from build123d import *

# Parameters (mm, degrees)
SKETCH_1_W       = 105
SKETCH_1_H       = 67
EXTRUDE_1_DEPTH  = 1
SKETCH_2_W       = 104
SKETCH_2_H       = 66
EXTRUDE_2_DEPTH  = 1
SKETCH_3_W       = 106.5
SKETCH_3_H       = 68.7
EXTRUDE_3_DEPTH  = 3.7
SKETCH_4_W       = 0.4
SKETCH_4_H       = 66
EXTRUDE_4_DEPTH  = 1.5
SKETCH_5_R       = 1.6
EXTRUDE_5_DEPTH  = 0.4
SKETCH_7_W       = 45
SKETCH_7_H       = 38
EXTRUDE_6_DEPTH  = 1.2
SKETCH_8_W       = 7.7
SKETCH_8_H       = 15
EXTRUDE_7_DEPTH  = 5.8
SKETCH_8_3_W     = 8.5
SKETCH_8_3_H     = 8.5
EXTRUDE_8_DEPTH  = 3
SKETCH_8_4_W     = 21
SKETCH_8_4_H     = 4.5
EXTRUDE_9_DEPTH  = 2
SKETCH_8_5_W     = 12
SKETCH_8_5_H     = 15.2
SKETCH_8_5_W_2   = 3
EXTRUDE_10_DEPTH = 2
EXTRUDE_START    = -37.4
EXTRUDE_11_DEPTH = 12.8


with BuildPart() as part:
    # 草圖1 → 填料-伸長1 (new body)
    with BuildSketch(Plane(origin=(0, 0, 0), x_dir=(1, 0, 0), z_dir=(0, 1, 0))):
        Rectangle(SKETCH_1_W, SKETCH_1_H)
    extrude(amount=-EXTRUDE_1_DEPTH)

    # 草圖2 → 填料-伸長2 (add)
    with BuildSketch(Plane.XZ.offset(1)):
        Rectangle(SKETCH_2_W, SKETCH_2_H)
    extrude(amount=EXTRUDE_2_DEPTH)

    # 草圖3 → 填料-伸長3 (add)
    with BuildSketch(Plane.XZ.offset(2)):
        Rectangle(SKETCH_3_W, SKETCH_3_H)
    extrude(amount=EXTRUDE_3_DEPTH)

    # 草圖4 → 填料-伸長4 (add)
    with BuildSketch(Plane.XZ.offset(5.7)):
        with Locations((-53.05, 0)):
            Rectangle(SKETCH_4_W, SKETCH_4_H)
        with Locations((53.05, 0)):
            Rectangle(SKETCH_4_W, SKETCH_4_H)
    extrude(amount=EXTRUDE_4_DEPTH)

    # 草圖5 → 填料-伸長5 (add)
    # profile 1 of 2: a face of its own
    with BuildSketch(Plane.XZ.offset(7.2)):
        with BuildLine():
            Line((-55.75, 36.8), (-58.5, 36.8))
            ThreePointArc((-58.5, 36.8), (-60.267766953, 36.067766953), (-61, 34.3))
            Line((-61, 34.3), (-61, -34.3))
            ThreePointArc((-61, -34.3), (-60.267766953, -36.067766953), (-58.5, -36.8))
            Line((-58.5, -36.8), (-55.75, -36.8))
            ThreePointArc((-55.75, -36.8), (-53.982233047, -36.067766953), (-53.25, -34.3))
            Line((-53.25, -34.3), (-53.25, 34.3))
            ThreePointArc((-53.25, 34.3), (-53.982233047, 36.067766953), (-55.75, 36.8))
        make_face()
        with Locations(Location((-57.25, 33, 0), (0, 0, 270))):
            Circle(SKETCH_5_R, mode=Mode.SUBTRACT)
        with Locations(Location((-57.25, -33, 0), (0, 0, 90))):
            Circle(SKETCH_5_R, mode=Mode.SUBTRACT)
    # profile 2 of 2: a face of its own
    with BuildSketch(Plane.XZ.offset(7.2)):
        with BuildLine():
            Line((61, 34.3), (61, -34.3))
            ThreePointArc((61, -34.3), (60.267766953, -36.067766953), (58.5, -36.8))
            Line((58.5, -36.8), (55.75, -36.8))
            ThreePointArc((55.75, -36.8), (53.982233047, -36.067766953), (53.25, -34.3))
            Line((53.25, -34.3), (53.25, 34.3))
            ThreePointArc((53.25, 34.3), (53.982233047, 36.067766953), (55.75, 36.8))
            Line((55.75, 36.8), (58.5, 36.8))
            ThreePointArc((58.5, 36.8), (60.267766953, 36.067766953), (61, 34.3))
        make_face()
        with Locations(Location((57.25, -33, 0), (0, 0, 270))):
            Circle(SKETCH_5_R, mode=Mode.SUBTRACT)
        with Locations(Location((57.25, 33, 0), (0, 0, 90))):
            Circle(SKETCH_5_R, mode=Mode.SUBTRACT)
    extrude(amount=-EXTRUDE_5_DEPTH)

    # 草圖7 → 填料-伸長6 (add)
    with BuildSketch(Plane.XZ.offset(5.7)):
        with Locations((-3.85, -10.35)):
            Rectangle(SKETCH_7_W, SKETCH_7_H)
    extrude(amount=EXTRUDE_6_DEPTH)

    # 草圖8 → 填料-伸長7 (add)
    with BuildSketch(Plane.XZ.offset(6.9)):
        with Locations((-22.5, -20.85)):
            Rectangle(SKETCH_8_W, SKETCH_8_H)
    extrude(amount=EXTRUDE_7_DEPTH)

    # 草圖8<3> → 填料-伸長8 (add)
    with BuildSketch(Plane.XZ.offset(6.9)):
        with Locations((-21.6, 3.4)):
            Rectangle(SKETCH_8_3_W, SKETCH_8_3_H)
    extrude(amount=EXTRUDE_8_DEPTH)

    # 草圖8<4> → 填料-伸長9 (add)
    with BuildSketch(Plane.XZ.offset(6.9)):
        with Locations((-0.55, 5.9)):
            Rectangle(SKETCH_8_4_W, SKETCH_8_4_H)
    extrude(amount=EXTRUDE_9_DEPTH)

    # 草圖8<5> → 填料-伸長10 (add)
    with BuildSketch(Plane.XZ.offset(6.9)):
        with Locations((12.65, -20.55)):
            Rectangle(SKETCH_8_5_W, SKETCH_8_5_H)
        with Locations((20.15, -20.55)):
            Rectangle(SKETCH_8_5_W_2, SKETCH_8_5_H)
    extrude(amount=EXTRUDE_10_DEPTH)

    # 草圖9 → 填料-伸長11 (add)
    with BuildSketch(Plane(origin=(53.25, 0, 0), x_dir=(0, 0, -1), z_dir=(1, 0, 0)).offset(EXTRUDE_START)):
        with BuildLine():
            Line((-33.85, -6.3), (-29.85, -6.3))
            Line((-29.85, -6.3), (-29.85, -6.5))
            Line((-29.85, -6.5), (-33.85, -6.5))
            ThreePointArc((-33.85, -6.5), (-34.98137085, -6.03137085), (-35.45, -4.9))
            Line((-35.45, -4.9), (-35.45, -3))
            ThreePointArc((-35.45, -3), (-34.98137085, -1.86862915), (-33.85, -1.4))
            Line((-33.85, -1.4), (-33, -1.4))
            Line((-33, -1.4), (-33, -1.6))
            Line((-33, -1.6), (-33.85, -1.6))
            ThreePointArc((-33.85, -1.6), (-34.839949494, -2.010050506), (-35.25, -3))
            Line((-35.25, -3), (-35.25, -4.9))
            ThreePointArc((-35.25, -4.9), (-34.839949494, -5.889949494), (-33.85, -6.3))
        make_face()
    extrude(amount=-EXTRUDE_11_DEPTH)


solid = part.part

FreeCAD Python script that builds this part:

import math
import FreeCAD as App
import Part
import Sketcher
from FreeCAD import Vector
Q = App.Units.Quantity


def add_polygon(sketch, points):
    """Adds a closed chain of lines whose ends are joined by coincident constraints."""
    first, n = sketch.GeometryCount, len(points)
    for a, b in zip(points, points[1:] + points[:1]):
        sketch.addGeometry(Part.LineSegment(App.Vector(*a, 0), App.Vector(*b, 0)), False)
    for i in range(n):
        sketch.addConstraint(Sketcher.Constraint("Coincident", first + i, 2, first + (i + 1) % n, 1))

doc = App.newDocument("Part")
body = doc.addObject("PartDesign::Body", "Body")

# Sketch on XZ plane
sketch1 = body.newObject("Sketcher::SketchObject", "Sketch")
sketch1.AttachmentSupport = (doc.getObject("XZ_Plane"), [""])
sketch1.MapMode = "FlatFace"
add_polygon(sketch1, [(-52.5, -33.5), (-52.5, 33.5), (52.5, 33.5), (52.5, -33.5)])  # lines 0-3
sketch1.addConstraint(Sketcher.Constraint("Vertical", 0))
sketch1.addConstraint(Sketcher.Constraint("Horizontal", 1))
sketch1.addConstraint(Sketcher.Constraint("Vertical", 2))
sketch1.addConstraint(Sketcher.Constraint("Horizontal", 3))
sketch1.addConstraint(Sketcher.Constraint("Symmetric", 0, 2, 2, 2, -1, 1))
sketch1.addConstraint(Sketcher.Constraint("DistanceX", 1, 1, 1, 2, Q("105 mm")))
sketch1.addConstraint(Sketcher.Constraint("DistanceY", 0, 1, 0, 2, Q("67 mm")))
pad1 = body.newObject("PartDesign::Pad", "Pad")
pad1.Profile = sketch1
pad1.Length = 1

# Sketch on XZ plane
sketch2 = body.newObject("Sketcher::SketchObject", "Sketch001")
sketch2.AttachmentSupport = (doc.getObject("XZ_Plane"), [""])
sketch2.MapMode = "FlatFace"
sketch2.AttachmentOffset = App.Placement(Vector(0, 0, 1), App.Rotation())
add_polygon(sketch2, [(-52, 33), (-52, -33), (52, -33), (52, 33)])  # lines 0-3
sketch2.addConstraint(Sketcher.Constraint("Vertical", 0))
sketch2.addConstraint(Sketcher.Constraint("Horizontal", 1))
sketch2.addConstraint(Sketcher.Constraint("Vertical", 2))
sketch2.addConstraint(Sketcher.Constraint("Horizontal", 3))
sketch2.addConstraint(Sketcher.Constraint("Symmetric", 0, 2, 2, 2, -1, 1))
sketch2.addConstraint(Sketcher.Constraint("DistanceX", 1, 1, 1, 2, Q("104 mm")))
sketch2.addConstraint(Sketcher.Constraint("DistanceY", 0, 2, 0, 1, Q("66 mm")))
pad2 = body.newObject("PartDesign::Pad", "Pad001")
pad2.Profile = sketch2
pad2.Length = 1

# Sketch on XZ plane
sketch3 = body.newObject("Sketcher::SketchObject", "Sketch002")
sketch3.AttachmentSupport = (doc.getObject("XZ_Plane"), [""])
sketch3.MapMode = "FlatFace"
sketch3.AttachmentOffset = App.Placement(Vector(0, 0, 2), App.Rotation())
add_polygon(sketch3, [(-53.25, 34.35), (-53.25, -34.35), (53.25, -34.35), (53.25, 34.35)])  # lines 0-3
sketch3.addConstraint(Sketcher.Constraint("Vertical", 0))
sketch3.addConstraint(Sketcher.Constraint("Horizontal", 1))
sketch3.addConstraint(Sketcher.Constraint("Vertical", 2))
sketch3.addConstraint(Sketcher.Constraint("Horizontal", 3))
sketch3.addConstraint(Sketcher.Constraint("Symmetric", 0, 2, 2, 2, -1, 1))
sketch3.addConstraint(Sketcher.Constraint("DistanceX", 1, 1, 1, 2, Q("106.5 mm")))
sketch3.addConstraint(Sketcher.Constraint("DistanceY", 0, 2, 0, 1, Q("68.7 mm")))
pad3 = body.newObject("PartDesign::Pad", "Pad002")
pad3.Profile = sketch3
pad3.Length = 3.7

# Sketch on XZ plane
sketch4 = body.newObject("Sketcher::SketchObject", "Sketch003")
sketch4.AttachmentSupport = (doc.getObject("XZ_Plane"), [""])
sketch4.MapMode = "FlatFace"
sketch4.AttachmentOffset = App.Placement(Vector(0, 0, 5.7), App.Rotation())
add_polygon(sketch4, [(-53.25, 33), (-53.25, -33), (-52.85, -33), (-52.85, 33)])  # lines 0-3
add_polygon(sketch4, [(52.85, 33), (52.85, -33), (53.25, -33), (53.25, 33)])  # lines 4-7
sketch4.addConstraint(Sketcher.Constraint("Vertical", 0))
sketch4.addConstraint(Sketcher.Constraint("Horizontal", 1))
sketch4.addConstraint(Sketcher.Constraint("Vertical", 2))
sketch4.addConstraint(Sketcher.Constraint("Horizontal", 3))
sketch4.addConstraint(Sketcher.Constraint("Vertical", 4))
sketch4.addConstraint(Sketcher.Constraint("Horizontal", 5))
sketch4.addConstraint(Sketcher.Constraint("Vertical", 6))
sketch4.addConstraint(Sketcher.Constraint("Horizontal", 7))
sketch4.addConstraint(Sketcher.Constraint("Symmetric", 2, 2, 4, 2, -1, 1))
sketch4.addConstraint(Sketcher.Constraint("Symmetric", 0, 2, 6, 2, -1, 1))
sketch4.addConstraint(Sketcher.Constraint("Horizontal", 1, 2, 4, 2))
sketch4.addConstraint(Sketcher.Constraint("DistanceY", 0, 2, 0, 1, Q("66 mm")))
sketch4.addConstraint(Sketcher.Constraint("DistanceX", 1, 1, 1, 2, Q("0.4 mm")))
sketch4.addConstraint(Sketcher.Constraint("DistanceX", 1, 2, 4, 2, Q("105.7 mm")))
pad4 = body.newObject("PartDesign::Pad", "Pad003")
pad4.Profile = sketch4
pad4.Length = 1.5

# Sketch on XZ plane
sketch5 = body.newObject("Sketcher::SketchObject", "Sketch004")
sketch5.AttachmentSupport = (doc.getObject("XZ_Plane"), [""])
sketch5.MapMode = "FlatFace"
sketch5.AttachmentOffset = App.Placement(Vector(0, 0, 7.2), App.Rotation())
sketch5.addGeometry(Part.LineSegment(Vector(-55.75, 36.8, 0), Vector(-58.5, 36.8, 0)), False)
sketch5.addGeometry(Part.ArcOfCircle(Part.Circle(Vector(-58.5, 34.3, 0), Vector(0, 0, 1), 2.5), math.radians(90), math.radians(180)), False)
sketch5.addGeometry(Part.LineSegment(Vector(-61, 34.3, 0), Vector(-61, -34.3, 0)), False)
sketch5.addGeometry(Part.ArcOfCircle(Part.Circle(Vector(-58.5, -34.3, 0), Vector(0, 0, 1), 2.5), math.radians(180), math.radians(270)), False)
sketch5.addGeometry(Part.LineSegment(Vector(-58.5, -36.8, 0), Vector(-55.75, -36.8, 0)), False)
sketch5.addGeometry(Part.ArcOfCircle(Part.Circle(Vector(-55.75, -34.3, 0), Vector(0, 0, 1), 2.5), math.radians(-90), math.radians(0)), False)
sketch5.addGeometry(Part.LineSegment(Vector(-53.25, -34.3, 0), Vector(-53.25, 34.3, 0)), False)
sketch5.addGeometry(Part.ArcOfCircle(Part.Circle(Vector(-55.75, 34.3, 0), Vector(0, 0, 1), 2.5), math.radians(0), math.radians(90)), False)
sketch5.addGeometry(Part.Circle(Vector(-57.25, -33, 0), Vector(0, 0, 1), 1.6), False)
sketch5.addGeometry(Part.Circle(Vector(-57.25, 33, 0), Vector(0, 0, 1), 1.6), False)
sketch5.addGeometry(Part.LineSegment(Vector(61, -34.3, 0), Vector(61, 34.3, 0)), False)
sketch5.addGeometry(Part.ArcOfCircle(Part.Circle(Vector(58.5, 34.3, 0), Vector(0, 0, 1), 2.5), math.radians(0), math.radians(90)), False)
sketch5.addGeometry(Part.LineSegment(Vector(58.5, 36.8, 0), Vector(55.75, 36.8, 0)), False)
sketch5.addGeometry(Part.ArcOfCircle(Part.Circle(Vector(55.75, 34.3, 0), Vector(0, 0, 1), 2.5), math.radians(90), math.radians(180)), False)
sketch5.addGeometry(Part.LineSegment(Vector(53.25, 34.3, 0), Vector(53.25, -34.3, 0)), False)
sketch5.addGeometry(Part.ArcOfCircle(Part.Circle(Vector(55.75, -34.3, 0), Vector(0, 0, 1), 2.5), math.radians(180), math.radians(270)), False)
sketch5.addGeometry(Part.LineSegment(Vector(55.75, -36.8, 0), Vector(58.5, -36.8, 0)), False)
sketch5.addGeometry(Part.ArcOfCircle(Part.Circle(Vector(58.5, -34.3, 0), Vector(0, 0, 1), 2.5), math.radians(-90), math.radians(0)), False)
sketch5.addGeometry(Part.Circle(Vector(57.25, -33, 0), Vector(0, 0, 1), 1.6), False)
sketch5.addGeometry(Part.Circle(Vector(57.25, 33, 0), Vector(0, 0, 1), 1.6), False)
sketch5.addConstraint(Sketcher.Constraint("Tangent", 0, 2, 1, 1))
sketch5.addConstraint(Sketcher.Constraint("Tangent", 1, 2, 2, 1))
sketch5.addConstraint(Sketcher.Constraint("Tangent", 2, 2, 3, 1))
sketch5.addConstraint(Sketcher.Constraint("Tangent", 3, 2, 4, 1))
sketch5.addConstraint(Sketcher.Constraint("Tangent", 4, 2, 5, 1))
sketch5.addConstraint(Sketcher.Constraint("Tangent", 5, 2, 6, 1))
sketch5.addConstraint(Sketcher.Constraint("Tangent", 6, 2, 7, 1))
sketch5.addConstraint(Sketcher.Constraint("Tangent", 7, 2, 0, 1))
sketch5.addConstraint(Sketcher.Constraint("Tangent", 10, 2, 11, 1))
sketch5.addConstraint(Sketcher.Constraint("Tangent", 11, 2, 12, 1))
sketch5.addConstraint(Sketcher.Constraint("Tangent", 12, 2, 13, 1))
sketch5.addConstraint(Sketcher.Constraint("Tangent", 13, 2, 14, 1))
sketch5.addConstraint(Sketcher.Constraint("Tangent", 14, 2, 15, 1))
sketch5.addConstraint(Sketcher.Constraint("Tangent", 15, 2, 16, 1))
sketch5.addConstraint(Sketcher.Constraint("Tangent", 16, 2, 17, 1))
sketch5.addConstraint(Sketcher.Constraint("Tangent", 17, 2, 10, 1))
sketch5.addConstraint(Sketcher.Constraint("Horizontal", 0))
sketch5.addConstraint(Sketcher.Constraint("Vertical", 2))
sketch5.addConstraint(Sketcher.Constraint("Horizontal", 4))
sketch5.addConstraint(Sketcher.Constraint("Vertical", 6))
sketch5.addConstraint(Sketcher.Constraint("Vertical", 10))
sketch5.addConstraint(Sketcher.Constraint("Horizontal", 12))
sketch5.addConstraint(Sketcher.Constraint("Vertical", 14))
sketch5.addConstraint(Sketcher.Constraint("Horizontal", 16))
sketch5.addConstraint(Sketcher.Constraint("Equal", 1, 3))
sketch5.addConstraint(Sketcher.Constraint("Equal", 3, 5))
sketch5.addConstraint(Sketcher.Constraint("Equal", 5, 7))
sketch5.addConstraint(Sketcher.Constraint("Equal", 8, 9))
sketch5.addConstraint(Sketcher.Constraint("Equal", 7, 11))
sketch5.addConstraint(Sketcher.Constraint("Equal", 11, 13))
sketch5.addConstraint(Sketcher.Constraint("Equal", 13, 15))
sketch5.addConstraint(Sketcher.Constraint("Equal", 15, 17))
sketch5.addConstraint(Sketcher.Constraint("Equal", 9, 18))
sketch5.addConstraint(Sketcher.Constraint("Equal", 18, 19))
sketch5.addConstraint(Sketcher.Constraint("Symmetric", 3, 3, 11, 3, -1, 1))
sketch5.addConstraint(Sketcher.Constraint("Symmetric", 7, 3, 15, 3, -1, 1))
sketch5.addConstraint(Sketcher.Constraint("Symmetric", 9, 3, 18, 3, -1, 1))
sketch5.addConstraint(Sketcher.Constraint("Symmetric", 8, 3, 19, 3, -1, 1))
sketch5.addConstraint(Sketcher.Constraint("Symmetric", 8, 3, 18, 3, -2))
sketch5.addConstraint(Sketcher.Constraint("Horizontal", 7, 3, 11, 3))
sketch5.addConstraint(Sketcher.Constraint("Diameter", 8, Q("3.2 mm")))
sketch5.addConstraint(Sketcher.Constraint("Radius", 1, Q("2.5 mm")))
sketch5.addConstraint(Sketcher.Constraint("DistanceY", 2, 2, 2, 1, Q("68.6 mm")))
sketch5.addConstraint(Sketcher.Constraint("DistanceY", 8, 3, -1, 1, Q("33 mm")))
sketch5.addConstraint(Sketcher.Constraint("DistanceX", 1, 2, -1, 1, Q("61 mm")))
sketch5.addConstraint(Sketcher.Constraint("DistanceX", 9, 3, 13, 3, Q("113 mm")))
sketch5.addConstraint(Sketcher.Constraint("DistanceX", 8, 3, 5, 2, Q("4 mm")))
pad5 = body.newObject("PartDesign::Pad", "Pad004")
pad5.Profile = sketch5
pad5.Length = 0.4
pad5.Reversed = True

# Sketch on XZ plane
sketch6 = body.newObject("Sketcher::SketchObject", "Sketch005")
sketch6.AttachmentSupport = (doc.getObject("XZ_Plane"), [""])
sketch6.MapMode = "FlatFace"
sketch6.AttachmentOffset = App.Placement(Vector(0, 0, 5.7), App.Rotation())
add_polygon(sketch6, [(-26.35, 8.65), (-26.35, -29.35), (18.65, -29.35), (18.65, 8.65)])  # lines 0-3
sketch6.addConstraint(Sketcher.Constraint("Vertical", 0))
sketch6.addConstraint(Sketcher.Constraint("Horizontal", 1))
sketch6.addConstraint(Sketcher.Constraint("Vertical", 2))
sketch6.addConstraint(Sketcher.Constraint("Horizontal", 3))
sketch6.addConstraint(Sketcher.Constraint("DistanceX", 1, 1, 1, 2, Q("45 mm")))
sketch6.addConstraint(Sketcher.Constraint("DistanceY", 0, 2, 0, 1, Q("38 mm")))
sketch6.addConstraint(Sketcher.Constraint("DistanceX", 0, 2, -1, 1, Q("26.35 mm")))
sketch6.addConstraint(Sketcher.Constraint("DistanceY", 0, 2, -1, 1, Q("29.35 mm")))
pad6 = body.newObject("PartDesign::Pad", "Pad005")
pad6.Profile = sketch6
pad6.Length = 1.2

# Sketch on XZ plane
sketch7 = body.newObject("Sketcher::SketchObject", "Sketch006")
sketch7.AttachmentSupport = (doc.getObject("XZ_Plane"), [""])
sketch7.MapMode = "FlatFace"
sketch7.AttachmentOffset = App.Placement(Vector(0, 0, 6.9), App.Rotation())
add_polygon(sketch7, [(-26.35, -13.35), (-26.35, -28.35), (-18.65, -28.35), (-18.65, -13.35)])  # lines 0-3
sketch7.addConstraint(Sketcher.Constraint("Vertical", 0))
sketch7.addConstraint(Sketcher.Constraint("Horizontal", 1))
sketch7.addConstraint(Sketcher.Constraint("Vertical", 2))
sketch7.addConstraint(Sketcher.Constraint("Horizontal", 3))
sketch7.addConstraint(Sketcher.Constraint("DistanceY", 0, 2, 0, 1, Q("15 mm")))
sketch7.addConstraint(Sketcher.Constraint("DistanceX", 1, 1, 1, 2, Q("7.7 mm")))
sketch7.addConstraint(Sketcher.Constraint("DistanceX", 0, 2, -1, 1, Q("26.35 mm")))
sketch7.addConstraint(Sketcher.Constraint("DistanceY", 0, 2, -1, 1, Q("28.35 mm")))
pad7 = body.newObject("PartDesign::Pad", "Pad006")
pad7.Profile = sketch7
pad7.Length = 5.8

# Sketch on XZ plane
sketch8 = body.newObject("Sketcher::SketchObject", "Sketch007")
sketch8.AttachmentSupport = (doc.getObject("XZ_Plane"), [""])
sketch8.MapMode = "FlatFace"
sketch8.AttachmentOffset = App.Placement(Vector(0, 0, 6.9), App.Rotation())
add_polygon(sketch8, [(-25.85, 7.65), (-25.85, -0.85), (-17.35, -0.85), (-17.35, 7.65)])  # lines 0-3
sketch8.addConstraint(Sketcher.Constraint("Vertical", 0))
sketch8.addConstraint(Sketcher.Constraint("Horizontal", 1))
sketch8.addConstraint(Sketcher.Constraint("Vertical", 2))
sketch8.addConstraint(Sketcher.Constraint("Horizontal", 3))
sketch8.addConstraint(Sketcher.Constraint("Equal", 3, 0))
sketch8.addConstraint(Sketcher.Constraint("DistanceX", 1, 1, 1, 2, Q("8.5 mm")))
sketch8.addConstraint(Sketcher.Constraint("DistanceX", 0, 2, -1, 1, Q("25.85 mm")))
sketch8.addConstraint(Sketcher.Constraint("DistanceY", 0, 2, -1, 1, Q("0.85 mm")))
pad8 = body.newObject("PartDesign::Pad", "Pad007")
pad8.Profile = sketch8
pad8.Length = 3

# Sketch on XZ plane
sketch9 = body.newObject("Sketcher::SketchObject", "Sketch008")
sketch9.AttachmentSupport = (doc.getObject("XZ_Plane"), [""])
sketch9.MapMode = "FlatFace"
sketch9.AttachmentOffset = App.Placement(Vector(0, 0, 6.9), App.Rotation())
add_polygon(sketch9, [(-11.05, 8.15), (-11.05, 3.65), (9.95, 3.65), (9.95, 8.15)])  # lines 0-3
sketch9.addConstraint(Sketcher.Constraint("Vertical", 0))
sketch9.addConstraint(Sketcher.Constraint("Horizontal", 1))
sketch9.addConstraint(Sketcher.Constraint("Vertical", 2))
sketch9.addConstraint(Sketcher.Constraint("Horizontal", 3))
sketch9.addConstraint(Sketcher.Constraint("DistanceX", 1, 1, 1, 2, Q("21 mm")))
sketch9.addConstraint(Sketcher.Constraint("DistanceY", 0, 2, 0, 1, Q("4.5 mm")))
sketch9.addConstraint(Sketcher.Constraint("DistanceX", 0, 2, -1, 1, Q("11.05 mm")))
sketch9.addConstraint(Sketcher.Constraint("DistanceY", -1, 1, 0, 2, Q("3.65 mm")))
pad9 = body.newObject("PartDesign::Pad", "Pad008")
pad9.Profile = sketch9
pad9.Length = 2

# Sketch on XZ plane
sketch10 = body.newObject("Sketcher::SketchObject", "Sketch009")
sketch10.AttachmentSupport = (doc.getObject("XZ_Plane"), [""])
sketch10.MapMode = "FlatFace"
sketch10.AttachmentOffset = App.Placement(Vector(0, 0, 6.9), App.Rotation())
add_polygon(sketch10, [(6.65, -12.95), (6.65, -28.15), (21.65, -28.15), (21.65, -12.95)])  # lines 0-3
sketch10.addConstraint(Sketcher.Constraint("Vertical", 0))
sketch10.addConstraint(Sketcher.Constraint("Horizontal", 1))
sketch10.addConstraint(Sketcher.Constraint("Vertical", 2))
sketch10.addConstraint(Sketcher.Constraint("Horizontal", 3))
sketch10.addConstraint(Sketcher.Constraint("DistanceX", 1, 1, 1, 2, Q("15 mm")))
sketch10.addConstraint(Sketcher.Constraint("DistanceY", 0, 2, 0, 1, Q("15.2 mm")))
sketch10.addConstraint(Sketcher.Constraint("DistanceX", -1, 1, 0, 2, Q("6.65 mm")))
sketch10.addConstraint(Sketcher.Constraint("DistanceY", 0, 2, -1, 1, Q("28.15 mm")))
pad10 = body.newObject("PartDesign::Pad", "Pad009")
pad10.Profile = sketch10
pad10.Length = 2

# Sketch on YZ plane
sketch11 = body.newObject("Sketcher::SketchObject", "Sketch010")
sketch11.AttachmentSupport = (doc.getObject("YZ_Plane"), [""])
sketch11.MapMode = "FlatFace"
sketch11.AttachmentOffset = App.Placement(Vector(0, 0, 15.85), App.Rotation())
sketch11.addGeometry(Part.LineSegment(Vector(-6.3, 29.85, 0), Vector(-6.3, 33.85, 0)), False)
sketch11.addGeometry(Part.ArcOfCircle(Part.Circle(Vector(-4.9, 33.85, 0), Vector(0, 0, 1), 1.4), math.radians(90), math.radians(180)), False)
sketch11.addGeometry(Part.LineSegment(Vector(-4.9, 35.25, 0), Vector(-3, 35.25, 0)), False)
sketch11.addGeometry(Part.ArcOfCircle(Part.Circle(Vector(-3, 33.85, 0), Vector(0, 0, 1), 1.4), math.radians(0), math.radians(90)), False)
sketch11.addGeometry(Part.LineSegment(Vector(-1.6, 33.85, 0), Vector(-1.6, 33, 0)), False)
sketch11.addGeometry(Part.LineSegment(Vector(-1.6, 33, 0), Vector(-1.4, 33, 0)), False)
sketch11.addGeometry(Part.LineSegment(Vector(-1.4, 33, 0), Vector(-1.4, 33.85, 0)), False)
sketch11.addGeometry(Part.ArcOfCircle(Part.Circle(Vector(-3, 33.85, 0), Vector(0, 0, 1), 1.6), math.radians(0), math.radians(90)), False)
sketch11.addGeometry(Part.LineSegment(Vector(-3, 35.45, 0), Vector(-4.9, 35.45, 0)), False)
sketch11.addGeometry(Part.ArcOfCircle(Part.Circle(Vector(-4.9, 33.85, 0), Vector(0, 0, 1), 1.6), math.radians(90), math.radians(180)), False)
sketch11.addGeometry(Part.LineSegment(Vector(-6.5, 33.85, 0), Vector(-6.5, 29.85, 0)), False)
sketch11.addGeometry(Part.LineSegment(Vector(-6.5, 29.85, 0), Vector(-6.3, 29.85, 0)), False)
sketch11.addConstraint(Sketcher.Constraint("Tangent", 0, 2, 1, 2))
sketch11.addConstraint(Sketcher.Constraint("Tangent", 1, 1, 2, 1))
sketch11.addConstraint(Sketcher.Constraint("Tangent", 2, 2, 3, 2))
sketch11.addConstraint(Sketcher.Constraint("Tangent", 3, 1, 4, 1))
sketch11.addConstraint(Sketcher.Constraint("Coincident", 4, 2, 5, 1))
sketch11.addConstraint(Sketcher.Constraint("Coincident", 5, 2, 6, 1))
sketch11.addConstraint(Sketcher.Constraint("Tangent", 6, 2, 7, 1))
sketch11.addConstraint(Sketcher.Constraint("Tangent", 7, 2, 8, 1))
sketch11.addConstraint(Sketcher.Constraint("Tangent", 8, 2, 9, 1))
sketch11.addConstraint(Sketcher.Constraint("Tangent", 9, 2, 10, 1))
sketch11.addConstraint(Sketcher.Constraint("Coincident", 10, 2, 11, 1))
sketch11.addConstraint(Sketcher.Constraint("Coincident", 11, 2, 0, 1))
sketch11.addConstraint(Sketcher.Constraint("Vertical", 0))
sketch11.addConstraint(Sketcher.Constraint("Horizontal", 2))
sketch11.addConstraint(Sketcher.Constraint("Vertical", 4))
sketch11.addConstraint(Sketcher.Constraint("Horizontal", 5))
sketch11.addConstraint(Sketcher.Constraint("Vertical", 6))
sketch11.addConstraint(Sketcher.Constraint("Horizontal", 8))
sketch11.addConstraint(Sketcher.Constraint("Vertical", 10))
sketch11.addConstraint(Sketcher.Constraint("Horizontal", 11))
sketch11.addConstraint(Sketcher.Constraint("Coincident", 7, 3, 3, 3))
sketch11.addConstraint(Sketcher.Constraint("Coincident", 9, 3, 1, 3))
sketch11.addConstraint(Sketcher.Constraint("Equal", 1, 3))
sketch11.addConstraint(Sketcher.Constraint("Radius", 1, Q("1.4 mm")))
sketch11.addConstraint(Sketcher.Constraint("Radius", 7, Q("1.6 mm")))
sketch11.addConstraint(Sketcher.Constraint("DistanceY", 0, 1, 0, 2, Q("4 mm")))
sketch11.addConstraint(Sketcher.Constraint("DistanceX", 2, 1, 2, 2, Q("1.9 mm")))
sketch11.addConstraint(Sketcher.Constraint("DistanceX", 3, 3, -1, 1, Q("3 mm")))
sketch11.addConstraint(Sketcher.Constraint("DistanceY", -1, 1, 4, 2, Q("33 mm")))
sketch11.addConstraint(Sketcher.Constraint("DistanceY", 4, 2, 4, 1, Q("0.85 mm")))
pad11 = body.newObject("PartDesign::Pad", "Pad010")
pad11.Profile = sketch11
pad11.Length = 12.8
pad11.Reversed = True

doc.recompute()
